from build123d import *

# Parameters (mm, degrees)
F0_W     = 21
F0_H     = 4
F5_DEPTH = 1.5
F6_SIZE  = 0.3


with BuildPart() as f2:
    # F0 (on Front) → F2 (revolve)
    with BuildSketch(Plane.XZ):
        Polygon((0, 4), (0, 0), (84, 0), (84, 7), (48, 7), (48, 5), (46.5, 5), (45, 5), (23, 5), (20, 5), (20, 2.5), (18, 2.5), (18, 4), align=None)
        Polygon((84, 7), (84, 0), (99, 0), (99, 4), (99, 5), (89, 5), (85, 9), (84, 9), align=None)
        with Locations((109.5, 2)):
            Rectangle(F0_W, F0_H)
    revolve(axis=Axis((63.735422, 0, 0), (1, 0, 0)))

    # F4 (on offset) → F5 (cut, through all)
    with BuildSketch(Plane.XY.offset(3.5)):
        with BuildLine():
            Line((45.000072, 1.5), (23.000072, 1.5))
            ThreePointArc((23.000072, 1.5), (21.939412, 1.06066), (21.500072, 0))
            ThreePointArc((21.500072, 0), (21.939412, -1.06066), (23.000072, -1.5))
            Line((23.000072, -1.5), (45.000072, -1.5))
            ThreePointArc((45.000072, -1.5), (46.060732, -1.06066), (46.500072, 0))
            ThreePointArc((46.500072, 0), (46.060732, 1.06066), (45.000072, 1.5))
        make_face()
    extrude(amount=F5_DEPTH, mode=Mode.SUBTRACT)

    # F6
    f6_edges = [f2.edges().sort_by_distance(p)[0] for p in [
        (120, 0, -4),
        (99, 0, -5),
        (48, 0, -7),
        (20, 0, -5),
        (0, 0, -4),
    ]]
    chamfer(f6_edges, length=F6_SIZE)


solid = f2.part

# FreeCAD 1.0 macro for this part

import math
import FreeCAD as App
import Part
import Sketcher
from FreeCAD import Vector


def edges_at(feature, points):
    """Names of the edges that pass closest to the given points."""
    edges = feature.Shape.Edges
    near = lambda p: min(range(len(edges)), key=lambda i: edges[i].distToShape(Part.Vertex(*p))[0])
    return sorted({f"Edge{near(p) + 1}" for p in points})

doc = App.newDocument("Part")
body = doc.addObject("PartDesign::Body", "Body")

sketch1 = body.newObject("Sketcher::SketchObject", "Sketch")
sketch1.AttachmentSupport = (doc.getObject("XZ_Plane"), [""])
sketch1.MapMode = "FlatFace"
sketch1.addGeometry(Part.LineSegment(Vector(0, 4, 0), Vector(0, 0, 0)), False)
sketch1.addGeometry(Part.LineSegment(Vector(0, 0, 0), Vector(120, 0, 0)), False)
sketch1.addGeometry(Part.LineSegment(Vector(120, 0, 0), Vector(120, 4, 0)), False)
sketch1.addGeometry(Part.LineSegment(Vector(120, 4, 0), Vector(99, 4, 0)), False)
sketch1.addGeometry(Part.LineSegment(Vector(99, 4, 0), Vector(99, 5, 0)), False)
sketch1.addGeometry(Part.LineSegment(Vector(99, 5, 0), Vector(89, 5, 0)), False)
sketch1.addGeometry(Part.LineSegment(Vector(89, 5, 0), Vector(85, 9, 0)), False)
sketch1.addGeometry(Part.LineSegment(Vector(85, 9, 0), Vector(84, 9, 0)), False)
sketch1.addGeometry(Part.LineSegment(Vector(84, 9, 0), Vector(84, 7, 0)), False)
sketch1.addGeometry(Part.LineSegment(Vector(84, 7, 0), Vector(48, 7, 0)), False)
sketch1.addGeometry(Part.LineSegment(Vector(48, 7, 0), Vector(48, 5, 0)), False)
sketch1.addGeometry(Part.LineSegment(Vector(48, 5, 0), Vector(20, 5, 0)), False)
sketch1.addGeometry(Part.LineSegment(Vector(20, 5, 0), Vector(20, 2.5, 0)), False)
sketch1.addGeometry(Part.LineSegment(Vector(20, 2.5, 0), Vector(18, 2.5, 0)), False)
sketch1.addGeometry(Part.LineSegment(Vector(18, 2.5, 0), Vector(18, 4, 0)), False)
sketch1.addGeometry(Part.LineSegment(Vector(18, 4, 0), Vector(0, 4, 0)), False)
sketch1.addConstraint(Sketcher.Constraint("Coincident", 0, 2, 1, 1))
sketch1.addConstraint(Sketcher.Constraint("Coincident", 1, 2, 2, 1))
sketch1.addConstraint(Sketcher.Constraint("Coincident", 2, 2, 3, 1))
sketch1.addConstraint(Sketcher.Constraint("Coincident", 3, 2, 4, 1))
sketch1.addConstraint(Sketcher.Constraint("Coincident", 4, 2, 5, 1))
sketch1.addConstraint(Sketcher.Constraint("Coincident", 5, 2, 6, 1))
sketch1.addConstraint(Sketcher.Constraint("Coincident", 6, 2, 7, 1))
sketch1.addConstraint(Sketcher.Constraint("Coincident", 7, 2, 8, 1))
sketch1.addConstraint(Sketcher.Constraint("Coincident", 8, 2, 9, 1))
sketch1.addConstraint(Sketcher.Constraint("Coincident", 9, 2, 10, 1))
sketch1.addConstraint(Sketcher.Constraint("Coincident", 10, 2, 11, 1))
sketch1.addConstraint(Sketcher.Constraint("Coincident", 11, 2, 12, 1))
sketch1.addConstraint(Sketcher.Constraint("Coincident", 12, 2, 13, 1))
sketch1.addConstraint(Sketcher.Constraint("Coincident", 13, 2, 14, 1))
sketch1.addConstraint(Sketcher.Constraint("Coincident", 14, 2, 15, 1))
sketch1.addConstraint(Sketcher.Constraint("Coincident", 15, 2, 0, 1))
sketch1.addConstraint(Sketcher.Constraint("Vertical", 0))
sketch1.addConstraint(Sketcher.Constraint("Horizontal", 1))
sketch1.addConstraint(Sketcher.Constraint("Vertical", 2))
sketch1.addConstraint(Sketcher.Constraint("Horizontal", 3))
sketch1.addConstraint(Sketcher.Constraint("Vertical", 4))
sketch1.addConstraint(Sketcher.Constraint("Horizontal", 5))
sketch1.addConstraint(Sketcher.Constraint("Horizontal", 7))
sketch1.addConstraint(Sketcher.Constraint("Vertical", 8))
sketch1.addConstraint(Sketcher.Constraint("Horizontal", 9))
sketch1.addConstraint(Sketcher.Constraint("Vertical", 10))
sketch1.addConstraint(Sketcher.Constraint("Horizontal", 11))
sketch1.addConstraint(Sketcher.Constraint("Vertical", 12))
sketch1.addConstraint(Sketcher.Constraint("Horizontal", 13))
sketch1.addConstraint(Sketcher.Constraint("Vertical", 14))
sketch1.addConstraint(Sketcher.Constraint("Horizontal", 15))
sketch1.addConstraint(Sketcher.Constraint("Coincident", 0, 2, -1, 1))
sketch1.addConstraint(Sketcher.Constraint("Horizontal", 5, 2, 10, 2))
sketch1.addConstraint(Sketcher.Constraint("Horizontal", 3, 2, 14, 2))
sketch1.addConstraint(Sketcher.Constraint("Equal", 7, 4))
sketch1.addConstraint(Sketcher.Constraint("Equal", 13, 8))
sketch1.addConstraint(Sketcher.Constraint("Equal", 8, 10))
sketch1.addConstraint(Sketcher.Constraint("DistanceX", 1, 1, 1, 2, 120.0))
sketch1.addConstraint(Sketcher.Constraint("DistanceX", 3, 2, 3, 1, 21.0))
sketch1.addConstraint(Sketcher.Constraint("DistanceX", 5, 2, 5, 1, 10.0))
sketch1.addConstraint(Sketcher.Constraint("DistanceX", 7, 2, 7, 1, 1.0))
sketch1.addConstraint(Sketcher.Constraint("DistanceX", 9, 2, 9, 1, 36.0))
sketch1.addConstraint(Sketcher.Constraint("DistanceX", 11, 2, 11, 1, 28.0))
sketch1.addConstraint(Sketcher.Constraint("DistanceX", 13, 2, 13, 1, 2.0))
sketch1.addConstraint(Sketcher.Constraint("DistanceX", 15, 2, 15, 1, 18.0))
sketch1.addConstraint(Sketcher.Constraint("DistanceY", 0, 2, 0, 1, 4.0))
sketch1.addConstraint(Sketcher.Constraint("DistanceY", 12, 2, 12, 1, 2.5))
revolution = body.newObject("PartDesign::Revolution", "Revolution")
revolution.Profile = sketch1
revolution.ReferenceAxis = (sketch1, ["H_Axis"])
revolution.Angle = 360

sketch2 = body.newObject("Sketcher::SketchObject", "Sketch001")
sketch2.AttachmentSupport = (doc.getObject("XY_Plane"), [""])
sketch2.MapMode = "FlatFace"
sketch2.AttachmentOffset = App.Placement(Vector(0, 0, 3.5), App.Rotation())
sketch2.addGeometry(Part.LineSegment(Vector(45, 1.5, 0), Vector(23, 1.5, 0)), False)
sketch2.addGeometry(Part.ArcOfCircle(Part.Circle(Vector(23, 0, 0), Vector(0, 0, 1), 1.5), math.radians(90), math.radians(180)), False)
sketch2.addGeometry(Part.ArcOfCircle(Part.Circle(Vector(23, 0, 0), Vector(0, 0, 1), 1.5), math.radians(-180), math.radians(-90)), False)
sketch2.addGeometry(Part.LineSegment(Vector(23, -1.5, 0), Vector(45, -1.5, 0)), False)
sketch2.addGeometry(Part.ArcOfCircle(Part.Circle(Vector(45, 0, 0), Vector(0, 0, 1), 1.5), math.radians(-90), math.radians(0)), False)
sketch2.addGeometry(Part.ArcOfCircle(Part.Circle(Vector(45, 0, 0), Vector(0, 0, 1), 1.5), math.radians(0), math.radians(90)), False)
sketch2.addConstraint(Sketcher.Constraint("Tangent", 0, 2, 1, 1))
sketch2.addConstraint(Sketcher.Constraint("Tangent", 1, 2, 2, 1))
sketch2.addConstraint(Sketcher.Constraint("Tangent", 2, 2, 3, 1))
sketch2.addConstraint(Sketcher.Constraint("Tangent", 3, 2, 4, 1))
sketch2.addConstraint(Sketcher.Constraint("Tangent", 4, 2, 5, 1))
sketch2.addConstraint(Sketcher.Constraint("Tangent", 5, 2, 0, 1))
sketch2.addConstraint(Sketcher.Constraint("Horizontal", 0))
sketch2.addConstraint(Sketcher.Constraint("Horizontal", 3))
sketch2.addConstraint(Sketcher.Constraint("Equal", 1, 2))
sketch2.addConstraint(Sketcher.Constraint("Equal", 2, 4))
sketch2.addConstraint(Sketcher.Constraint("PointOnObject", 1, 3, -1))
sketch2.addConstraint(Sketcher.Constraint("PointOnObject", 1, 2, -1))
sketch2.addConstraint(Sketcher.Constraint("PointOnObject", 4, 2, -1))
sketch2.addConstraint(Sketcher.Constraint("Radius", 1, 1.500001))
sketch2.addConstraint(Sketcher.Constraint("DistanceX", 0, 2, 0, 1, 22.0))
sketch2.addConstraint(Sketcher.Constraint("DistanceX", -1, 1, 4, 3, 45.000071))
pocket1 = body.newObject("PartDesign::Pocket", "Pocket")
pocket1.Profile = sketch2
pocket1.Type = "ThroughAll"
pocket1.Reversed = True
doc.recompute()

chamfer = body.newObject("PartDesign::Chamfer", "Chamfer")
chamfer.Base = (pocket1, edges_at(pocket1, [
    (120, 0, -4),
    (99, 0, -5),
    (48, 0, -7),
    (20, 0, -5),
    (0, 0, -4),
]))
chamfer.Size = 0.3

doc.recompute()
